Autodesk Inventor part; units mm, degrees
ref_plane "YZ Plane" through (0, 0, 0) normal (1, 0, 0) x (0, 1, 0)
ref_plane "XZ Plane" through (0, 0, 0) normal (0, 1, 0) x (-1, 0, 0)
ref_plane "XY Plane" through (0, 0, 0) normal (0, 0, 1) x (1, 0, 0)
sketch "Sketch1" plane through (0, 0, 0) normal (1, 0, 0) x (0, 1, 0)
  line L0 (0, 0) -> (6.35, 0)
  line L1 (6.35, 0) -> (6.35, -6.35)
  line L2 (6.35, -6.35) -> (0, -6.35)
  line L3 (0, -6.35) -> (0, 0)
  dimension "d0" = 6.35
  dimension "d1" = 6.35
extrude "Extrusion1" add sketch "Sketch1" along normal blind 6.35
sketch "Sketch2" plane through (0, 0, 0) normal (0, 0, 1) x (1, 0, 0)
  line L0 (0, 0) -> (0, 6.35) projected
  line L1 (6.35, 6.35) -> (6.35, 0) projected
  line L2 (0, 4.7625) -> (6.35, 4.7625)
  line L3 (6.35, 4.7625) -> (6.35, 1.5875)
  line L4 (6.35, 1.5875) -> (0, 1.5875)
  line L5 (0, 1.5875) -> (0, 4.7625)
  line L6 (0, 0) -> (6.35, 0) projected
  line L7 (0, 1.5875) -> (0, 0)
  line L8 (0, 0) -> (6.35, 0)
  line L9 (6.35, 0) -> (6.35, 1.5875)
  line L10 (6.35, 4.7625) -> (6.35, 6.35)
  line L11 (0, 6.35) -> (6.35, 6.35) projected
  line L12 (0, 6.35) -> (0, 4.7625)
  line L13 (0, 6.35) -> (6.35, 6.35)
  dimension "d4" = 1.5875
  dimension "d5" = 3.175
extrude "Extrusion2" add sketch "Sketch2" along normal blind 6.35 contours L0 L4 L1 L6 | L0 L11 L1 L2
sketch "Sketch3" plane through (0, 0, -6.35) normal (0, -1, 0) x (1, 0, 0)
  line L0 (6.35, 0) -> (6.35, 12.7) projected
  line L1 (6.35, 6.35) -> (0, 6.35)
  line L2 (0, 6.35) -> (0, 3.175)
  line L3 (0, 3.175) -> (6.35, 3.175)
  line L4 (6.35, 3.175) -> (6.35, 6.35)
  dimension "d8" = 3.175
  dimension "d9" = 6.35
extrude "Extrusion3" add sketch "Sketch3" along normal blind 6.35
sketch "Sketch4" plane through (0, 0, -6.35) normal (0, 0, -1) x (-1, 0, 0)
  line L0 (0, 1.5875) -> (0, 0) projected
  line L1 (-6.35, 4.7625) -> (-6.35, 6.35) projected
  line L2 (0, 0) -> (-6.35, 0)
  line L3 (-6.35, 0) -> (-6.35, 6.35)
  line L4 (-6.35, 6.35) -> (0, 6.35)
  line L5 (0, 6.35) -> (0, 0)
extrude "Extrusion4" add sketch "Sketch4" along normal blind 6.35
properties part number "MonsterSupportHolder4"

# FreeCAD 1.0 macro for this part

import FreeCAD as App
import Part
import Sketcher

V = App.Vector
Q = App.Units.Quantity

doc = App.newDocument("Part")
params = doc.addObject("Spreadsheet::Sheet", "Params")
for row, (alias, value) in enumerate([
    ("sketch1_width", "0.25 in"),
    ("pad1_length", "0.25 in"),
    ("sketch2_height", "0.0625 in"),
    ("sketch2_width", "0.25 in"),
    ("pad2_length", "0.25 in"),
    ("sketch3_width", "0.25 in"),
    ("sketch3_height", "0.125 in"),
    ("pad3_length", "0.25 in"),
    ("sketch4_width", "0.25 in"),
    ("pad4_length", "0.25 in"),
], start=1):
    params.set(f"A{row}", alias)
    params.set(f"B{row}", "=" + value)
    params.setAlias(f"B{row}", alias)

body = doc.addObject("PartDesign::Body", "Body")

sketch1 = body.newObject("Sketcher::SketchObject", "Sketch")
sketch1.AttachmentSupport = (doc.getObject("YZ_Plane"), [""])
sketch1.MapMode = "FlatFace"
sketch1.addGeometry([
    Part.LineSegment(V(6, 0, 0), V(0, 0, 0)),
    Part.LineSegment(V(0, 0, 0), V(0, -6, 0)),
    Part.LineSegment(V(0, -6, 0), V(6, -6, 0)),
    Part.LineSegment(V(6, -6, 0), V(6, 0, 0)),
], False)
sketch1.addConstraint([
    Sketcher.Constraint("Coincident", 0, 2, 1, 1),
    Sketcher.Constraint("Coincident", 1, 2, 2, 1),
    Sketcher.Constraint("Coincident", 2, 2, 3, 1),
    Sketcher.Constraint("Coincident", 3, 2, 0, 1),
    Sketcher.Constraint("Horizontal", 0),
    Sketcher.Constraint("Vertical", 1),
    Sketcher.Constraint("Horizontal", 2),
    Sketcher.Constraint("Vertical", 3),
    Sketcher.Constraint("Coincident", 0, 2, -1, 1),
    Sketcher.Constraint("Equal", 2, 1),
    Sketcher.Constraint("DistanceX", 0, 2, 0, 1, Q("0.25 in")),
])
sketch1.setExpression("Constraints[10]", "Params.sketch1_width")
pad1 = body.newObject("PartDesign::Pad", "Pad")
pad1.Profile = sketch1
pad1.setExpression("Length", "Params.pad1_length")

sketch2 = body.newObject("Sketcher::SketchObject", "Sketch001")
sketch2.AttachmentSupport = (doc.getObject("XY_Plane"), [""])
sketch2.MapMode = "FlatFace"
sketch2.addGeometry([
    Part.LineSegment(V(0, 1.6, 0), V(0, 0, 0)),
    Part.LineSegment(V(0, 0, 0), V(6.3, 0, 0)),
    Part.LineSegment(V(6.3, 0, 0), V(6.3, 1.6, 0)),
    Part.LineSegment(V(6.3, 1.6, 0), V(0, 1.6, 0)),
    Part.LineSegment(V(0, 6.3, 0), V(0, 4.8, 0)),
    Part.LineSegment(V(0, 4.8, 0), V(6.3, 4.8, 0)),
    Part.LineSegment(V(6.3, 4.8, 0), V(6.3, 6.3, 0)),
    Part.LineSegment(V(6.3, 6.3, 0), V(0, 6.3, 0)),
], False)
sketch2.addConstraint([
    Sketcher.Constraint("Coincident", 0, 2, 1, 1),
    Sketcher.Constraint("Coincident", 1, 2, 2, 1),
    Sketcher.Constraint("Coincident", 2, 2, 3, 1),
    Sketcher.Constraint("Coincident", 3, 2, 0, 1),
    Sketcher.Constraint("Coincident", 4, 2, 5, 1),
    Sketcher.Constraint("Coincident", 5, 2, 6, 1),
    Sketcher.Constraint("Coincident", 6, 2, 7, 1),
    Sketcher.Constraint("Coincident", 7, 2, 4, 1),
    Sketcher.Constraint("Vertical", 0),
    Sketcher.Constraint("Horizontal", 1),
    Sketcher.Constraint("Vertical", 2),
    Sketcher.Constraint("Horizontal", 3),
    Sketcher.Constraint("Vertical", 4),
    Sketcher.Constraint("Horizontal", 5),
    Sketcher.Constraint("Vertical", 6),
    Sketcher.Constraint("Horizontal", 7),
    Sketcher.Constraint("Coincident", 0, 2, -1, 1),
    Sketcher.Constraint("PointOnObject", 4, 2, -2),
    Sketcher.Constraint("Vertical", 2, 2, 5, 2),
    Sketcher.Constraint("Equal", 2, 4),
    Sketcher.Constraint("DistanceY", 0, 2, 0, 1, Q("0.0625 in")),
    Sketcher.Constraint("DistanceY", 3, 2, 4, 2, Q("0.125 in")),
    Sketcher.Constraint("DistanceX", 1, 1, 1, 2, Q("0.25 in")),
])
sketch2.setExpression("Constraints[20]", "Params.sketch2_height")
sketch2.setExpression("Constraints[22]", "Params.sketch2_width")
pad2 = body.newObject("PartDesign::Pad", "Pad001")
pad2.Profile = sketch2
pad2.setExpression("Length", "Params.pad2_length")

sketch3 = body.newObject("Sketcher::SketchObject", "Sketch002")
sketch3.AttachmentSupport = (doc.getObject("XZ_Plane"), [""])
sketch3.MapMode = "FlatFace"
sketch3.addGeometry([
    Part.LineSegment(V(0, -3.2, 0), V(6.3, -3.2, 0)),
    Part.LineSegment(V(6.3, -3.2, 0), V(6.3, 0, 0)),
    Part.LineSegment(V(6.3, 0, 0), V(0, 0, 0)),
    Part.LineSegment(V(0, 0, 0), V(0, -3.2, 0)),
], False)
sketch3.addConstraint([
    Sketcher.Constraint("Coincident", 0, 2, 1, 1),
    Sketcher.Constraint("Coincident", 1, 2, 2, 1),
    Sketcher.Constraint("Coincident", 2, 2, 3, 1),
    Sketcher.Constraint("Coincident", 3, 2, 0, 1),
    Sketcher.Constraint("Horizontal", 0),
    Sketcher.Constraint("Vertical", 1),
    Sketcher.Constraint("Horizontal", 2),
    Sketcher.Constraint("Vertical", 3),
    Sketcher.Constraint("Coincident", 2, 2, -1, 1),
    Sketcher.Constraint("DistanceX", 0, 1, 0, 2, Q("0.25 in")),
    Sketcher.Constraint("DistanceY", 1, 1, 1, 2, Q("0.125 in")),
])
sketch3.setExpression("Constraints[9]", "Params.sketch3_width")
sketch3.setExpression("Constraints[10]", "Params.sketch3_height")
pad3 = body.newObject("PartDesign::Pad", "Pad002")
pad3.Profile = sketch3
pad3.setExpression("Length", "Params.pad3_length")

sketch4 = body.newObject("Sketcher::SketchObject", "Sketch003")
sketch4.AttachmentSupport = (doc.getObject("XY_Plane"), [""])
sketch4.MapMode = "FlatFace"
sketch4.AttachmentOffset = App.Placement(V(0, 0, -0.25 * 25.4), App.Rotation())
sketch4.addGeometry([
    Part.LineSegment(V(0, 0, 0), V(0, 6, 0)),
    Part.LineSegment(V(0, 6, 0), V(6, 6, 0)),
    Part.LineSegment(V(6, 6, 0), V(6, 0, 0)),
    Part.LineSegment(V(6, 0, 0), V(0, 0, 0)),
], False)
sketch4.addConstraint([
    Sketcher.Constraint("Coincident", 0, 2, 1, 1),
    Sketcher.Constraint("Coincident", 1, 2, 2, 1),
    Sketcher.Constraint("Coincident", 2, 2, 3, 1),
    Sketcher.Constraint("Coincident", 3, 2, 0, 1),
    Sketcher.Constraint("Vertical", 0),
    Sketcher.Constraint("Horizontal", 1),
    Sketcher.Constraint("Vertical", 2),
    Sketcher.Constraint("Horizontal", 3),
    Sketcher.Constraint("Coincident", 3, 2, -1, 1),
    Sketcher.Constraint("Equal", 3, 0),
    Sketcher.Constraint("DistanceX", 1, 1, 1, 2, Q("0.25 in")),
])
sketch4.setExpression("Constraints[10]", "Params.sketch4_width")
pad4 = body.newObject("PartDesign::Pad", "Pad003")
pad4.Profile = sketch4
pad4.setExpression("Length", "Params.pad4_length")
pad4.Reversed = True

doc.recompute()
